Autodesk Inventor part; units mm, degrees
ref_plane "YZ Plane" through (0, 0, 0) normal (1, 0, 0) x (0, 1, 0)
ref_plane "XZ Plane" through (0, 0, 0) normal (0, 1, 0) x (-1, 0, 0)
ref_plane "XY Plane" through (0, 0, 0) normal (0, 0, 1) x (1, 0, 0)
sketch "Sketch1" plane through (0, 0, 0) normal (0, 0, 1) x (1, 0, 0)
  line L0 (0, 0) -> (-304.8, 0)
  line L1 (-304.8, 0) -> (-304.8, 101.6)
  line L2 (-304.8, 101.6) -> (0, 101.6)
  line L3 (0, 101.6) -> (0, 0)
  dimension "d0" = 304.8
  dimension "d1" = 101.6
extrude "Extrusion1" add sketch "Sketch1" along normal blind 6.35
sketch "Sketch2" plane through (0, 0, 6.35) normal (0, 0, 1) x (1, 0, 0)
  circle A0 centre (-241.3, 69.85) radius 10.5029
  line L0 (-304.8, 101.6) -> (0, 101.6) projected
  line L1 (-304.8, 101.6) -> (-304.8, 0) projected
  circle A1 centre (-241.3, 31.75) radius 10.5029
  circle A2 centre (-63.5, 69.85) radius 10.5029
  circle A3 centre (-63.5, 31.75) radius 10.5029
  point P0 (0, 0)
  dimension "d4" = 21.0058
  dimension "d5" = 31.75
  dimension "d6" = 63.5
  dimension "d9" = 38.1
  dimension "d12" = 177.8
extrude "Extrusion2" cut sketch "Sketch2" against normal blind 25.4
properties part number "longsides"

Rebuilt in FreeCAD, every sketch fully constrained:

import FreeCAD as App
import Part
import Sketcher

V = App.Vector
Q = App.Units.Quantity


def add_polygon(sketch, points):
    """Adds a closed chain of lines whose ends are joined by coincident constraints."""
    first, n = sketch.GeometryCount, len(points)
    for a, b in zip(points, points[1:] + points[:1]):
        sketch.addGeometry(Part.LineSegment(App.Vector(*a, 0), App.Vector(*b, 0)), False)
    for i in range(n):
        sketch.addConstraint(Sketcher.Constraint("Coincident", first + i, 2, first + (i + 1) % n, 1))

doc = App.newDocument("Part")
params = doc.addObject("Spreadsheet::Sheet", "Params")
for row, (alias, value) in enumerate([
    ("sketch1_width", "12 in"),
    ("sketch1_height", "4 in"),
    ("pad1_length", "0.25 in"),
    ("sketch2_diameter", "0.827 in"),
    ("pocket1_length", "1 in"),
], start=1):
    params.set(f"A{row}", alias)
    params.set(f"B{row}", "=" + value)
    params.setAlias(f"B{row}", alias)

body = doc.addObject("PartDesign::Body", "Body")

sketch1 = body.newObject("Sketcher::SketchObject", "Sketch")
sketch1.AttachmentSupport = (doc.getObject("XY_Plane"), [""])
sketch1.MapMode = "FlatFace"
add_polygon(sketch1, [(-305, 0), (0, 0), (0, 102), (-305, 102)])
sketch1.addConstraint(Sketcher.Constraint("Horizontal", 0))
sketch1.addConstraint(Sketcher.Constraint("Vertical", 1))
sketch1.addConstraint(Sketcher.Constraint("Horizontal", 2))
sketch1.addConstraint(Sketcher.Constraint("Vertical", 3))
sketch1.addConstraint(Sketcher.Constraint("Coincident", 0, 2, -1, 1))
sketch1.addConstraint(Sketcher.Constraint("DistanceX", 0, 1, 0, 2, Q("12 in")))
sketch1.addConstraint(Sketcher.Constraint("DistanceY", 1, 1, 1, 2, Q("4 in")))
sketch1.setExpression("Constraints[9]", "Params.sketch1_width")
sketch1.setExpression("Constraints[10]", "Params.sketch1_height")
pad1 = body.newObject("PartDesign::Pad", "Pad")
pad1.Profile = sketch1
pad1.setExpression("Length", "Params.pad1_length")

sketch2 = body.newObject("Sketcher::SketchObject", "Sketch001")
sketch2.AttachmentSupport = (doc.getObject("XY_Plane"), [""])
sketch2.MapMode = "FlatFace"
sketch2.AttachmentOffset = App.Placement(V(0, 0, 0.25 * 25.4), App.Rotation())
sketch2.addGeometry(Part.Circle(V(-241, 70, 0), V(0, 0, 1), 11), False)
sketch2.addGeometry(Part.Circle(V(-241, 32, 0), V(0, 0, 1), 11), False)
sketch2.addGeometry(Part.Circle(V(-64, 70, 0), V(0, 0, 1), 11), False)
sketch2.addGeometry(Part.Circle(V(-64, 32, 0), V(0, 0, 1), 11), False)
sketch2.addConstraint(Sketcher.Constraint("Equal", 0, 1))
sketch2.addConstraint(Sketcher.Constraint("Equal", 1, 2))
sketch2.addConstraint(Sketcher.Constraint("Equal", 2, 3))
sketch2.addConstraint(Sketcher.Constraint("Horizontal", 0, 3, 2, 3))
sketch2.addConstraint(Sketcher.Constraint("Horizontal", 1, 3, 3, 3))
sketch2.addConstraint(Sketcher.Constraint("Vertical", 0, 3, 1, 3))
sketch2.addConstraint(Sketcher.Constraint("Vertical", 2, 3, 3, 3))
sketch2.addConstraint(Sketcher.Constraint("Diameter", 0, Q("0.827 in")))
sketch2.addConstraint(Sketcher.Constraint("DistanceX", 0, 3, 2, 3, Q("7 in")))
sketch2.addConstraint(Sketcher.Constraint("DistanceX", 2, 3, -1, 1, Q("2.5 in")))
sketch2.addConstraint(Sketcher.Constraint("DistanceY", 1, 3, 0, 3, Q("1.5 in")))
sketch2.addConstraint(Sketcher.Constraint("DistanceY", -1, 1, 1, 3, Q("1.25 in")))
sketch2.setExpression("Constraints[7]", "Params.sketch2_diameter")
pocket1 = body.newObject("PartDesign::Pocket", "Pocket")
pocket1.Profile = sketch2
pocket1.setExpression("Length", "Params.pocket1_length")

doc.recompute()
